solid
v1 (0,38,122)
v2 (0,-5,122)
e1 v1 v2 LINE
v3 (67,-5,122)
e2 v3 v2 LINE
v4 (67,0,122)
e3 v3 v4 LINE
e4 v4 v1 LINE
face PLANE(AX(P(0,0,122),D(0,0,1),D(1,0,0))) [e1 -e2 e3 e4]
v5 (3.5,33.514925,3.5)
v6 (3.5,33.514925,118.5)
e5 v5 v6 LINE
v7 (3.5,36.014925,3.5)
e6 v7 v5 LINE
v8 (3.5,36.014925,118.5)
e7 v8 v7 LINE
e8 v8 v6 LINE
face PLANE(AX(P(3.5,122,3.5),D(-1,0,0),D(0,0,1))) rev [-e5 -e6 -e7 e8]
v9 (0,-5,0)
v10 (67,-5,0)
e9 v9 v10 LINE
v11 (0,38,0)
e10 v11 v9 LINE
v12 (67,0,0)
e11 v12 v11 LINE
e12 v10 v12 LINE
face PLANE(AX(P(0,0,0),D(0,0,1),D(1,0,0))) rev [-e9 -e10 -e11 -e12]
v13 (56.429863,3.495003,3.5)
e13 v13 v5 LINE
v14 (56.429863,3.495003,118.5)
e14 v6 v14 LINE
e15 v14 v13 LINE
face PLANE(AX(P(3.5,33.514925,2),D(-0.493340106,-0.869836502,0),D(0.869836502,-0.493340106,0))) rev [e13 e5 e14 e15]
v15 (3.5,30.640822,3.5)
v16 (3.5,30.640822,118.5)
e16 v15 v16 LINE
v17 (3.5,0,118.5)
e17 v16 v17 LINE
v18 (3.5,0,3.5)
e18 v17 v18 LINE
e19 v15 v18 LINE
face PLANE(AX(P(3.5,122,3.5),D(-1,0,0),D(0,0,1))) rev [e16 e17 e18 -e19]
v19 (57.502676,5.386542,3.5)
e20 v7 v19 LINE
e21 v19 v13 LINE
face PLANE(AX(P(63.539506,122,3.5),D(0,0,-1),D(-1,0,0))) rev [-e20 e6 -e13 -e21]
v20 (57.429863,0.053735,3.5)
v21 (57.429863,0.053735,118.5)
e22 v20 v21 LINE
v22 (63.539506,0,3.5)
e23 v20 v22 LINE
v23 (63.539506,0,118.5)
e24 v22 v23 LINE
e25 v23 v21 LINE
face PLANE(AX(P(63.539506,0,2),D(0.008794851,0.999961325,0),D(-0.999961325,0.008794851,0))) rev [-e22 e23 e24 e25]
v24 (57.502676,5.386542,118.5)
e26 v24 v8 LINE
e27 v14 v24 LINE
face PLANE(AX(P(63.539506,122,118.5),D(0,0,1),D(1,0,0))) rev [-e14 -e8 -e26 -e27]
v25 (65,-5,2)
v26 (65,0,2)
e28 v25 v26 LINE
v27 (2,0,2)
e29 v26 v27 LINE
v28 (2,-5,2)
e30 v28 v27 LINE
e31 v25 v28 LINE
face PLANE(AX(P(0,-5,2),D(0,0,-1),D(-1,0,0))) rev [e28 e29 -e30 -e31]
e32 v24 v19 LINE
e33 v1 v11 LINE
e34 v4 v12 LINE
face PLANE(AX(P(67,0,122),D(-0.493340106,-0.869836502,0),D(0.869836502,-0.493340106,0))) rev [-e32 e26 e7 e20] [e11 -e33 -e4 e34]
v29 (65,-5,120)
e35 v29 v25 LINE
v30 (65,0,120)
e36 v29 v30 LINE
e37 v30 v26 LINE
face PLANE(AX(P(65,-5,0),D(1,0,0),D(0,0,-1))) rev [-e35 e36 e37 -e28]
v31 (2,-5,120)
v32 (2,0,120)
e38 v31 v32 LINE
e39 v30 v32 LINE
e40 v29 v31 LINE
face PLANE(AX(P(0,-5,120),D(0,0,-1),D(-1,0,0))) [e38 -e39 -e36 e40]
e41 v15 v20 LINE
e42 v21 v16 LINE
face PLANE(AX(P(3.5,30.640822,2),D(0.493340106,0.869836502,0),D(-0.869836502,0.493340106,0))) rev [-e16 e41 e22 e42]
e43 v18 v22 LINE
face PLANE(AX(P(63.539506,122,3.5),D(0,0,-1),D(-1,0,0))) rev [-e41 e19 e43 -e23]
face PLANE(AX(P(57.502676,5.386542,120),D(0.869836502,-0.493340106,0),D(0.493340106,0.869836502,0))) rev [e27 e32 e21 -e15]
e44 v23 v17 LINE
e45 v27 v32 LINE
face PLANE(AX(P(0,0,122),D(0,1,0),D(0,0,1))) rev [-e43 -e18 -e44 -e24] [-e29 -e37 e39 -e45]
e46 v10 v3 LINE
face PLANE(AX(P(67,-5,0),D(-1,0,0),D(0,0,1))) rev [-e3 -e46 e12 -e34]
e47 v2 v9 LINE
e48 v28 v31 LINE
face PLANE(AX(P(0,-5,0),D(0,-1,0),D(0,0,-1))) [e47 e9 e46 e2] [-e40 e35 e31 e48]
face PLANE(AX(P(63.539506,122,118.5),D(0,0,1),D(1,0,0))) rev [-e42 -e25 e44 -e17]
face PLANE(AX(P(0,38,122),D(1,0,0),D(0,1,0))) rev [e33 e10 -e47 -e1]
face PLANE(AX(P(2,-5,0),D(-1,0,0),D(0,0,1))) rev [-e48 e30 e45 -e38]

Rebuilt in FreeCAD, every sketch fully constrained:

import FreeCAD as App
import Part
import Sketcher

V = App.Vector
Q = App.Units.Quantity


def add_polygon(sketch, points):
    """Adds a closed chain of lines whose ends are joined by coincident constraints."""
    first, n = sketch.GeometryCount, len(points)
    for a, b in zip(points, points[1:] + points[:1]):
        sketch.addGeometry(Part.LineSegment(App.Vector(*a, 0), App.Vector(*b, 0)), False)
    for i in range(n):
        sketch.addConstraint(Sketcher.Constraint("Coincident", first + i, 2, first + (i + 1) % n, 1))

doc = App.newDocument("Part")
body = doc.addObject("PartDesign::Body", "Body")

# Sketch on XY plane
sketch1 = body.newObject("Sketcher::SketchObject", "Sketch")
sketch1.AttachmentSupport = (doc.getObject("XY_Plane"), [""])
sketch1.MapMode = "FlatFace"
add_polygon(sketch1, [(0, 0), (67, 0), (0, 38)])  # lines 0-2
sketch1.addConstraint([
    Sketcher.Constraint("Horizontal", 0),
    Sketcher.Constraint("Vertical", 2),
    Sketcher.Constraint("Coincident", 2, 2, -1, 1),
    Sketcher.Constraint("DistanceX", 0, 1, 0, 2, Q("67 mm")),
    Sketcher.Constraint("DistanceY", 2, 2, 2, 1, Q("38 mm")),
])
pad1 = body.newObject("PartDesign::Pad", "Pad")
pad1.Profile = sketch1
pad1.Length = 122

# Sketch on XZ plane
sketch2 = body.newObject("Sketcher::SketchObject", "Sketch001")
sketch2.AttachmentSupport = (doc.getObject("XZ_Plane"), [""])
sketch2.MapMode = "FlatFace"
add_polygon(sketch2, [(3.5, 118.5), (3.5, 3.5), (63.539506, 3.5), (63.539506, 118.5)])  # lines 0-3
sketch2.addConstraint([
    Sketcher.Constraint("Vertical", 0),
    Sketcher.Constraint("Horizontal", 1),
    Sketcher.Constraint("Vertical", 2),
    Sketcher.Constraint("Horizontal", 3),
    Sketcher.Constraint("DistanceY", 0, 2, 0, 1, Q("115 mm")),
    Sketcher.Constraint("DistanceX", -1, 1, 0, 2, Q("3.5 mm")),
    Sketcher.Constraint("DistanceY", -1, 1, 0, 2, Q("3.5 mm")),
    Sketcher.Constraint("DistanceX", 1, 1, 1, 2, Q("60.039506 mm")),
])
pocket1 = body.newObject("PartDesign::Pocket", "Pocket")
pocket1.Profile = sketch2
pocket1.Length = 122

# Sketch on XY plane
sketch3 = body.newObject("Sketcher::SketchObject", "Sketch002")
sketch3.AttachmentSupport = (doc.getObject("XY_Plane"), [""])
sketch3.MapMode = "FlatFace"
sketch3.AttachmentOffset = App.Placement(V(0, 0, 118.5), App.Rotation())
add_polygon(sketch3, [(3.5, 30.640822), (3.5, 33.514925), (57.429863, 2.927839), (57.429863, 0.053735)])  # lines 0-3
sketch3.addConstraint([
    Sketcher.Constraint("Vertical", 0),
    Sketcher.Constraint("Vertical", 2),
    Sketcher.Constraint("Parallel", 1, 3),
    Sketcher.Constraint("Distance", 1, Q("62 mm")),
    Sketcher.Constraint("DistanceX", -1, 1, 0, 2, Q("3.5 mm")),
    Sketcher.Constraint("DistanceY", 0, 1, 0, 2, Q("2.874103 mm")),
    Sketcher.Constraint("DistanceY", -1, 1, 1, 2, Q("2.927839 mm")),
    Sketcher.Constraint("DistanceY", 2, 2, 0, 2, Q("33.46119 mm")),
])
pad2 = body.newObject("PartDesign::Pad", "Pad001")
pad2.Profile = sketch3
pad2.Length = 116.5
pad2.Reversed = True

# Sketch on XY plane
sketch4 = body.newObject("Sketcher::SketchObject", "Sketch003")
sketch4.AttachmentSupport = (doc.getObject("XY_Plane"), [""])
sketch4.MapMode = "FlatFace"
sketch4.AttachmentOffset = App.Placement(V(0, 0, 118.5), App.Rotation())
add_polygon(sketch4, [(57.429863, 2.927839), (58.502676, 4.819378), (63.539506, 1.962668), (63.539506, 0), (57.429863, 0.053735)])  # lines 0-4
sketch4.addConstraint([
    Sketcher.Constraint("Vertical", 2),
    Sketcher.Constraint("Vertical", 4),
    Sketcher.Constraint("PointOnObject", 2, 2, -1),
    Sketcher.Constraint("Perpendicular", 0, 1),
    Sketcher.Constraint("DistanceY", 2, 2, 2, 1, Q("1.962668 mm")),
    Sketcher.Constraint("Distance", 0, Q("2.174591 mm")),
    Sketcher.Constraint("Distance", 1, Q("5.790548 mm")),
    Sketcher.Constraint("Distance", 3, Q("6.109879 mm")),
    Sketcher.Constraint("DistanceY", 4, 1, 4, 2, Q("2.874103 mm")),
    Sketcher.Constraint("DistanceX", -1, 1, 0, 2, Q("58.502676 mm")),
])
pad3 = body.newObject("PartDesign::Pad", "Pad002")
pad3.Profile = sketch4
pad3.Length = 116.5
pad3.Reversed = True

# Sketch on XY plane
sketch5 = body.newObject("Sketcher::SketchObject", "Sketch004")
sketch5.AttachmentSupport = (doc.getObject("XY_Plane"), [""])
sketch5.MapMode = "FlatFace"
sketch5.AttachmentOffset = App.Placement(V(0, 0, 3.5), App.Rotation())
add_polygon(sketch5, [(58.502676, 4.819378), (57.502676, 5.386542), (56.429863, 3.495003), (57.429863, 2.927839)])  # lines 0-3
sketch5.addConstraint([
    Sketcher.Constraint("Perpendicular", 0, 1),
    Sketcher.Constraint("Perpendicular", 1, 2),
    Sketcher.Constraint("Perpendicular", 2, 3),
    Sketcher.Constraint("DistanceX", 1, 2, 2, 2, Q("1 mm")),
    Sketcher.Constraint("Distance", 0, Q("1.149641 mm")),
    Sketcher.Constraint("Distance", 1, Q("2.174591 mm")),
    Sketcher.Constraint("DistanceY", -1, 1, 0, 2, Q("5.386542 mm")),
    Sketcher.Constraint("DistanceX", -1, 1, 0, 2, Q("57.502676 mm")),
])
pad4 = body.newObject("PartDesign::Pad", "Pad003")
pad4.Profile = sketch5
pad4.Length = 116.5

# Sketch on XZ plane
sketch6 = body.newObject("Sketcher::SketchObject", "Sketch005")
sketch6.AttachmentSupport = (doc.getObject("XZ_Plane"), [""])
sketch6.MapMode = "FlatFace"
add_polygon(sketch6, [(0, 122), (0, 0), (67, 0), (67, 122)])  # lines 0-3
add_polygon(sketch6, [(65, 2), (2, 2), (2, 120), (65, 120)])  # lines 4-7
sketch6.addConstraint([
    Sketcher.Constraint("Vertical", 0),
    Sketcher.Constraint("Horizontal", 1),
    Sketcher.Constraint("Vertical", 2),
    Sketcher.Constraint("Horizontal", 3),
    Sketcher.Constraint("Horizontal", 4),
    Sketcher.Constraint("Vertical", 5),
    Sketcher.Constraint("Horizontal", 6),
    Sketcher.Constraint("Vertical", 7),
    Sketcher.Constraint("Coincident", 0, 2, -1, 1),
    Sketcher.Constraint("DistanceX", 1, 1, 1, 2, Q("67 mm")),
    Sketcher.Constraint("DistanceX", 4, 2, 4, 1, Q("63 mm")),
    Sketcher.Constraint("DistanceY", 0, 2, 0, 1, Q("122 mm")),
    Sketcher.Constraint("DistanceY", 5, 1, 5, 2, Q("118 mm")),
    Sketcher.Constraint("DistanceX", -1, 1, 4, 2, Q("2 mm")),
    Sketcher.Constraint("DistanceY", -1, 1, 4, 2, Q("2 mm")),
])
pad5 = body.newObject("PartDesign::Pad", "Pad004")
pad5.Profile = sketch6
pad5.Length = 5

doc.recompute()
